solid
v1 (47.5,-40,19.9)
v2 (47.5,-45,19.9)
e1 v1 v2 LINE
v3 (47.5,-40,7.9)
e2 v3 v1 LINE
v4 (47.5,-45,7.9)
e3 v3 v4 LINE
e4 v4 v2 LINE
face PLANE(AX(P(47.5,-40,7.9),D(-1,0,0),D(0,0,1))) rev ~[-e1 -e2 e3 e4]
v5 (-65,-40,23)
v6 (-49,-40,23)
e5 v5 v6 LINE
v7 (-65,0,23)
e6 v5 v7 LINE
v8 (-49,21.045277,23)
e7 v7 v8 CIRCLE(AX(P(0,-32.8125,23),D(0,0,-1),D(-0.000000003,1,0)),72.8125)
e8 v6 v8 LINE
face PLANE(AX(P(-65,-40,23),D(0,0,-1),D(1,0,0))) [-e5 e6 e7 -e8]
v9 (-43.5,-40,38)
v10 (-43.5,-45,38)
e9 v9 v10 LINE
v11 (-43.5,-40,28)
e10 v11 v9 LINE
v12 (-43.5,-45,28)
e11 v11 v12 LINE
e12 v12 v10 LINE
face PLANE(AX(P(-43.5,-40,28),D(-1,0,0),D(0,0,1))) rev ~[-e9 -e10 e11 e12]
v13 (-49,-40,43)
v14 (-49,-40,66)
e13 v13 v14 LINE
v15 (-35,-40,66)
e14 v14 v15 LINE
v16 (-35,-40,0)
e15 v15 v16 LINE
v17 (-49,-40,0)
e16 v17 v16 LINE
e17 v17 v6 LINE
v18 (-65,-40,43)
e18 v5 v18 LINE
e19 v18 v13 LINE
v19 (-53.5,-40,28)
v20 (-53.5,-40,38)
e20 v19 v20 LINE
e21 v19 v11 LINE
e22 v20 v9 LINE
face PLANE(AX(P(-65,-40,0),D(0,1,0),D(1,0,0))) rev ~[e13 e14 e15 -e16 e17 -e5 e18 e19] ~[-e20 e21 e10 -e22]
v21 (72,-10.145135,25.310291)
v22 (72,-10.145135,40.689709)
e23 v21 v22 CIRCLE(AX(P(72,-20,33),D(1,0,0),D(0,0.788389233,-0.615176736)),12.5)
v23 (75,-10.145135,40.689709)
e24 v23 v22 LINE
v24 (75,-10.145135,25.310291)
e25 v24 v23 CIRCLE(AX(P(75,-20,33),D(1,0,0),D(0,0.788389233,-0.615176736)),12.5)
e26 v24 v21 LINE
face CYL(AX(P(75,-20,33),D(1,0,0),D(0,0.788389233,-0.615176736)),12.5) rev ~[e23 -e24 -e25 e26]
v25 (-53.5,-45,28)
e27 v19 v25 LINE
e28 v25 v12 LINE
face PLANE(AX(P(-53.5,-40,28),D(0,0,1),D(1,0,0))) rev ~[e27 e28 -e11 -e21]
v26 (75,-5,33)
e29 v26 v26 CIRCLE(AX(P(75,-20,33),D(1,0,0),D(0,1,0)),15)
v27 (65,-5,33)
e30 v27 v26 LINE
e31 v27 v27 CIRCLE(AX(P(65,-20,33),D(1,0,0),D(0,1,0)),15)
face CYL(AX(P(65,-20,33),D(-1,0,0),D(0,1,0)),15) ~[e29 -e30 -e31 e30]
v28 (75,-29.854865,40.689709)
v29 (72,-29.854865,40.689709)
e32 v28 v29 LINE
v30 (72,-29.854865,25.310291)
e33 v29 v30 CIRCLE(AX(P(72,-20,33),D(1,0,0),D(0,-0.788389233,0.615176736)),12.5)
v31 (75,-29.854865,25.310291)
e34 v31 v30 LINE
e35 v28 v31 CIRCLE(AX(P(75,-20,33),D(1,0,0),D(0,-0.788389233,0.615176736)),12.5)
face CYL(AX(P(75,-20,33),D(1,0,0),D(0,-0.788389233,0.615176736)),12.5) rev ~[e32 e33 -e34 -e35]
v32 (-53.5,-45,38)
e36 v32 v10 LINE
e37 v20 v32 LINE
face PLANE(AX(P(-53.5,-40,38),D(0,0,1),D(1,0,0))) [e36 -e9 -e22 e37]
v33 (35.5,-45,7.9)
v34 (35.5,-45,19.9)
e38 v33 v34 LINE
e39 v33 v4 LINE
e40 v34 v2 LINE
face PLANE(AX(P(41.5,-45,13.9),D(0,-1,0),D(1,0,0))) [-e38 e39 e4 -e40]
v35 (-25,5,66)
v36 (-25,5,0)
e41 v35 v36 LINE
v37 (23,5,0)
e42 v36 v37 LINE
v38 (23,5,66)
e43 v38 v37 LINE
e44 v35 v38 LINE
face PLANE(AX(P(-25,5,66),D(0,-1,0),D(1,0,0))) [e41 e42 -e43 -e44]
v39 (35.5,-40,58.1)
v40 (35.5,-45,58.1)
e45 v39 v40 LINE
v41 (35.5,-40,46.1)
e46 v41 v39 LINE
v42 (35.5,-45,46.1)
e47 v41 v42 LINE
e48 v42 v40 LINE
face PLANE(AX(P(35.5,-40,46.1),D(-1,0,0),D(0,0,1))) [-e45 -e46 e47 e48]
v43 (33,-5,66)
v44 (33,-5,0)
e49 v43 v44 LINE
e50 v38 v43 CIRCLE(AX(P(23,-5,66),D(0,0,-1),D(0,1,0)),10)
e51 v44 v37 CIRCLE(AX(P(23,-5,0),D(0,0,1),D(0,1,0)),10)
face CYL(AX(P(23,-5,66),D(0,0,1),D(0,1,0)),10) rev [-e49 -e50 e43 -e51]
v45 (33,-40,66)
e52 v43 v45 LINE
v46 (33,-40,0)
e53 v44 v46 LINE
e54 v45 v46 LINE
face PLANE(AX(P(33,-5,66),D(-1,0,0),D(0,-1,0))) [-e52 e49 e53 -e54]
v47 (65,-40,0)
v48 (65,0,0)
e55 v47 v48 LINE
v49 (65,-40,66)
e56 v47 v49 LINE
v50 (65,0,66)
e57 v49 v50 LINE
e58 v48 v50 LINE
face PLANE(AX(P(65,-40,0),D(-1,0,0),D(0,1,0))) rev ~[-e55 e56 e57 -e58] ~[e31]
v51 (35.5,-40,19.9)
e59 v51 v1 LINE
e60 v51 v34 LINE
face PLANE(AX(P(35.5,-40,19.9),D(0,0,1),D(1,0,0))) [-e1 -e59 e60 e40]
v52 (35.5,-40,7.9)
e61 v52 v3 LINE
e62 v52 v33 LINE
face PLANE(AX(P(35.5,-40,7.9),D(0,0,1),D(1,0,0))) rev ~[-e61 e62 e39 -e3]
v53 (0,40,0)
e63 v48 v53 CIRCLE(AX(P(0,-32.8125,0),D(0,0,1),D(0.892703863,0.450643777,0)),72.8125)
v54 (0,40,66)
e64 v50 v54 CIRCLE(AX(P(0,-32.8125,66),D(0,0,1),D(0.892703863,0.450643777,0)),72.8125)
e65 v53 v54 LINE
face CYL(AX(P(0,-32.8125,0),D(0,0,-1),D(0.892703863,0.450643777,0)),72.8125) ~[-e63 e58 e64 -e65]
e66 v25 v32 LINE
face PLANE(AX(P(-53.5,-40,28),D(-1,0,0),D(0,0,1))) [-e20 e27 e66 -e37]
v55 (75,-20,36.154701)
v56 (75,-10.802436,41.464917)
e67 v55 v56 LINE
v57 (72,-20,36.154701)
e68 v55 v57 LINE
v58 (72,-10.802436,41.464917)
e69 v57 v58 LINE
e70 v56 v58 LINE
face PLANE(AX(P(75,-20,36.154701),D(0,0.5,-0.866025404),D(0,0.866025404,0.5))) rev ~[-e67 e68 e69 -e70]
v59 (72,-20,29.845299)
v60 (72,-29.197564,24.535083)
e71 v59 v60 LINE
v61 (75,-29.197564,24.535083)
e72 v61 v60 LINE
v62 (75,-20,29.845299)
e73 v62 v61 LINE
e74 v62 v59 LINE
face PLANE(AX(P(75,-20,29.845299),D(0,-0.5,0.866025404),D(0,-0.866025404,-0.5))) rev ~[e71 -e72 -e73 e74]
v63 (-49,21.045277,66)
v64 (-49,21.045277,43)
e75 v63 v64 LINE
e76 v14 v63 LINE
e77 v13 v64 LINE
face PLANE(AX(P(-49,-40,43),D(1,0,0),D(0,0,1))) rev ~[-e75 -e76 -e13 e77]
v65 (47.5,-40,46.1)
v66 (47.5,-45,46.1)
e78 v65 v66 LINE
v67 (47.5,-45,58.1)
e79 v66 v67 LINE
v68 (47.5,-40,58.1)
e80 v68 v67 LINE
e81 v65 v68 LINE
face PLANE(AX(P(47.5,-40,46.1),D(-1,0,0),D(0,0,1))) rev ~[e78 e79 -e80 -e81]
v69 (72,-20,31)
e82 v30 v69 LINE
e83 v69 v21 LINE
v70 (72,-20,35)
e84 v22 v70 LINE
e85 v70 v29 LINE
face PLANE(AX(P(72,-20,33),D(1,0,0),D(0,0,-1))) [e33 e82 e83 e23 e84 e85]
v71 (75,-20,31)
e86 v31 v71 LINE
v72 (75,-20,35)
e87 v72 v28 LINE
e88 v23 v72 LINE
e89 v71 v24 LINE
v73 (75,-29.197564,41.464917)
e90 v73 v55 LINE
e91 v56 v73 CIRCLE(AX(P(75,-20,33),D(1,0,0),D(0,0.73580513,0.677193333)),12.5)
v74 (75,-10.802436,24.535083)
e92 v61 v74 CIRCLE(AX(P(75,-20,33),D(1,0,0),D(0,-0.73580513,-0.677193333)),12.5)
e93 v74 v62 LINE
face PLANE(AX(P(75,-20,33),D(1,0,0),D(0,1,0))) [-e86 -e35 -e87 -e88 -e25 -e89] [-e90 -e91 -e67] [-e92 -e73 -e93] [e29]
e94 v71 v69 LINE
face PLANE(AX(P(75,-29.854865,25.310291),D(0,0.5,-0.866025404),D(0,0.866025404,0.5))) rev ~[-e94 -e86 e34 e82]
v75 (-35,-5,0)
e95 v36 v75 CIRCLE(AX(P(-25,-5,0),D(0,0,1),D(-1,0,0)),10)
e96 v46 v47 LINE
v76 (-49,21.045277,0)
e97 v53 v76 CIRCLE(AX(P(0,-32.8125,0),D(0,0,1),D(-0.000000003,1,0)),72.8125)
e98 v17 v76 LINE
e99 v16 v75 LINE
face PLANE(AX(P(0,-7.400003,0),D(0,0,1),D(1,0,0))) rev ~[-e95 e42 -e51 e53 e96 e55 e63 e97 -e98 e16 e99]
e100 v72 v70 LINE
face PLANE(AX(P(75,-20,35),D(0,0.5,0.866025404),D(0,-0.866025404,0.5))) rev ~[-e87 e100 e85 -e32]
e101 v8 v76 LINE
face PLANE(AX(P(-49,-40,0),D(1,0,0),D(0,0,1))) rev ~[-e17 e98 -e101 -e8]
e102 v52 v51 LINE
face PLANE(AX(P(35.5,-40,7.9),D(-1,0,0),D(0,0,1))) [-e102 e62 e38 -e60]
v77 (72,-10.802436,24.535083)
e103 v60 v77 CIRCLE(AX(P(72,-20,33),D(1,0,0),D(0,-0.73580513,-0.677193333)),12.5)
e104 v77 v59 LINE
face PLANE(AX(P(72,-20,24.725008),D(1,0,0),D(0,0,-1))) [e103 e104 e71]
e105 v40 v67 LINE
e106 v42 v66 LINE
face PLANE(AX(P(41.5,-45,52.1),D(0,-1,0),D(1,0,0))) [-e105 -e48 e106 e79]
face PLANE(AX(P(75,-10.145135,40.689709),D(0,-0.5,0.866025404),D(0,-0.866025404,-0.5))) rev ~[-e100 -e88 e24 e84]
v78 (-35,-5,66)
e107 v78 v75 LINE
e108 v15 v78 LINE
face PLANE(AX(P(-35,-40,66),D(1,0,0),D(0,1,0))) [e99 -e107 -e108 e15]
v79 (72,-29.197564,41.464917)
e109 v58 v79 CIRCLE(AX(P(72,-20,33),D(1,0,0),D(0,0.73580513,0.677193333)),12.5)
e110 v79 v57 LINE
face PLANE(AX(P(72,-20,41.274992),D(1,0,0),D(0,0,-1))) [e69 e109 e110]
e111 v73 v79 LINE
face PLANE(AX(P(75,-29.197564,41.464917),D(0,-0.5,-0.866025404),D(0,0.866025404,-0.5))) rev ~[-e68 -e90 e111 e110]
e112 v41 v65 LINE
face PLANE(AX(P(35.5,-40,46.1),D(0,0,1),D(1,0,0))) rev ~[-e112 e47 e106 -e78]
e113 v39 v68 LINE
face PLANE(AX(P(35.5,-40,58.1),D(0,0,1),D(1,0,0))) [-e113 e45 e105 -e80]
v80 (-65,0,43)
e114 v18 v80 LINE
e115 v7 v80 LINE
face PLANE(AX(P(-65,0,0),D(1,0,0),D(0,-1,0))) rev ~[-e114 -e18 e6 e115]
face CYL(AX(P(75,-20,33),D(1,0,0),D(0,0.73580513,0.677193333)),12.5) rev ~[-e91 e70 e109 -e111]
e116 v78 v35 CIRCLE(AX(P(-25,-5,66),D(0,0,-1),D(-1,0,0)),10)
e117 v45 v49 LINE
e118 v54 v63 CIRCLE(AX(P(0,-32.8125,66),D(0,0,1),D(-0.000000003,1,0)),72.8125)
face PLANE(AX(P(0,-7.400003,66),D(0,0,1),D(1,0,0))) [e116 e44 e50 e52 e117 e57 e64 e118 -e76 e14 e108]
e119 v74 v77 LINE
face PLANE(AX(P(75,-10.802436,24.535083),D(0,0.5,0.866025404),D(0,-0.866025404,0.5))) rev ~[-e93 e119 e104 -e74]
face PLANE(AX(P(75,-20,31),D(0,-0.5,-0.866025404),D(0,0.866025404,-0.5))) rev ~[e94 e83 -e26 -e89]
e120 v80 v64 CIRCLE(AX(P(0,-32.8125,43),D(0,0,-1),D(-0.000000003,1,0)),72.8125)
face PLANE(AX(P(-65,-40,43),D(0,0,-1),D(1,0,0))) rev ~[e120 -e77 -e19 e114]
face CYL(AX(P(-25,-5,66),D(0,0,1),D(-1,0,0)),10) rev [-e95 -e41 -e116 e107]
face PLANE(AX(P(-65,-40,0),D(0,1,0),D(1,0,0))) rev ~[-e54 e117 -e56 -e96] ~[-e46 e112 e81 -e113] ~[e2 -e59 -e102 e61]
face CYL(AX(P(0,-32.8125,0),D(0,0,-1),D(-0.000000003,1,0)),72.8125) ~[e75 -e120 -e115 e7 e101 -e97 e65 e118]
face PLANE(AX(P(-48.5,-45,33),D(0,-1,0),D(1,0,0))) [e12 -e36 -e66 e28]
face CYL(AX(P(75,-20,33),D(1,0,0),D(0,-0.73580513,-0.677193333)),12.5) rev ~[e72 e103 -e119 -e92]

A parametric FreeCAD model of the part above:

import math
import FreeCAD as App
import Part
import Sketcher
from FreeCAD import Vector
Q = App.Units.Quantity


def add_polygon(sketch, points):
    """Adds a closed chain of lines whose ends are joined by coincident constraints."""
    first, n = sketch.GeometryCount, len(points)
    for a, b in zip(points, points[1:] + points[:1]):
        sketch.addGeometry(Part.LineSegment(App.Vector(*a, 0), App.Vector(*b, 0)), False)
    for i in range(n):
        sketch.addConstraint(Sketcher.Constraint("Coincident", first + i, 2, first + (i + 1) % n, 1))

doc = App.newDocument("Part")
params = doc.addObject("Spreadsheet::Sheet", "Params")
for row, (alias, value) in enumerate([
    ("sketch1_width", "130 mm"),
    ("sketch1_height", "40 mm"),
    ("pad1_length", "66 mm"),
    ("sketch2_diameter", "30 mm"),
    ("pad2_length", "10 mm"),
    ("sketch3_radius", "10 mm"),
    ("sketch3_width", "48 mm"),
    ("sketch3_height", "35 mm"),
    ("sketch4_width", "16 mm"),
    ("sketch4_height", "23 mm"),
    ("sketch5_width", "10 mm"),
    ("pad3_length", "5 mm"),
    ("sketch6_width", "12 mm"),
    ("pad4_length", "5 mm"),
    ("sketch7_radius", "12.5 mm"),
    ("pocket3_length", "3 mm"),
], start=1):
    params.set(f"A{row}", alias)
    params.set(f"B{row}", "=" + value)
    params.setAlias(f"B{row}", alias)

body = doc.addObject("PartDesign::Body", "Body")

# Sketch on XY plane
sketch1 = body.newObject("Sketcher::SketchObject", "Sketch")
sketch1.AttachmentSupport = (doc.getObject("XY_Plane"), [""])
sketch1.MapMode = "FlatFace"
sketch1.addGeometry(Part.ArcOfCircle(Part.Circle(Vector(0, -33, 0), Vector(0, 0, 1), 73), math.radians(27), math.radians(90)), False)
sketch1.addGeometry(Part.ArcOfCircle(Part.Circle(Vector(0, -33, 0), Vector(0, 0, 1), 73), math.radians(90), math.radians(153)), False)
sketch1.addGeometry(Part.LineSegment(Vector(-65, 0, 0), Vector(-65, -40, 0)), False)
sketch1.addGeometry(Part.LineSegment(Vector(-65, -40, 0), Vector(65, -40, 0)), False)
sketch1.addGeometry(Part.LineSegment(Vector(65, -40, 0), Vector(65, 0, 0)), False)
sketch1.addConstraint(Sketcher.Constraint("Tangent", 0, 2, 1, 1))
sketch1.addConstraint(Sketcher.Constraint("Coincident", 1, 2, 2, 1))
sketch1.addConstraint(Sketcher.Constraint("Coincident", 2, 2, 3, 1))
sketch1.addConstraint(Sketcher.Constraint("Coincident", 3, 2, 4, 1))
sketch1.addConstraint(Sketcher.Constraint("Coincident", 4, 2, 0, 1))
sketch1.addConstraint(Sketcher.Constraint("Vertical", 2))
sketch1.addConstraint(Sketcher.Constraint("Horizontal", 3))
sketch1.addConstraint(Sketcher.Constraint("Vertical", 4))
sketch1.addConstraint(Sketcher.Constraint("Equal", 0, 1))
sketch1.addConstraint(Sketcher.Constraint("Symmetric", 1, 2, 4, 2, -1, 1))
sketch1.addConstraint(Sketcher.Constraint("PointOnObject", 0, 3, -2))
sketch1.addConstraint(Sketcher.Constraint("PointOnObject", 0, 2, -2))
sketch1.addConstraint(Sketcher.Constraint("DistanceX", 3, 1, 3, 2, Q("130 mm")))
sketch1.addConstraint(Sketcher.Constraint("DistanceY", 2, 2, 2, 1, Q("40 mm")))
sketch1.addConstraint(Sketcher.Constraint("DistanceY", -1, 1, 0, 2, Q("40 mm")))
sketch1.setExpression("Constraints[12]", "Params.sketch1_width")
sketch1.setExpression("Constraints[13]", "Params.sketch1_height")
pad1 = body.newObject("PartDesign::Pad", "Pad")
pad1.Profile = sketch1
pad1.setExpression("Length", "Params.pad1_length")

# Sketch on YZ plane
sketch2 = body.newObject("Sketcher::SketchObject", "Sketch001")
sketch2.AttachmentSupport = (doc.getObject("YZ_Plane"), [""])
sketch2.MapMode = "FlatFace"
sketch2.AttachmentOffset = App.Placement(Vector(0, 0, 65), App.Rotation())
sketch2.addGeometry(Part.Circle(Vector(-20, 33, 0), Vector(0, 0, 1), 15), False)
sketch2.addConstraint(Sketcher.Constraint("Diameter", 0, Q("30 mm")))
sketch2.addConstraint(Sketcher.Constraint("DistanceX", 0, 3, -1, 1, Q("20 mm")))
sketch2.addConstraint(Sketcher.Constraint("DistanceY", -1, 1, 0, 3, Q("33 mm")))
sketch2.setExpression("Constraints[0]", "Params.sketch2_diameter")
pad2 = body.newObject("PartDesign::Pad", "Pad001")
pad2.Profile = sketch2
pad2.setExpression("Length", "Params.pad2_length")

# Sketch on XY plane
sketch3 = body.newObject("Sketcher::SketchObject", "Sketch002")
sketch3.AttachmentSupport = (doc.getObject("XY_Plane"), [""])
sketch3.MapMode = "FlatFace"
sketch3.AttachmentOffset = App.Placement(Vector(0, 0, 66), App.Rotation())
sketch3.addGeometry(Part.LineSegment(Vector(23, 5, 0), Vector(-25, 5, 0)), False)
sketch3.addGeometry(Part.ArcOfCircle(Part.Circle(Vector(-25, -5, 0), Vector(0, 0, 1), 10), math.radians(90), math.radians(180)), False)
sketch3.addGeometry(Part.LineSegment(Vector(-35, -5, 0), Vector(-35, -40, 0)), False)
sketch3.addGeometry(Part.LineSegment(Vector(-35, -40, 0), Vector(33, -40, 0)), False)
sketch3.addGeometry(Part.LineSegment(Vector(33, -40, 0), Vector(33, -5, 0)), False)
sketch3.addGeometry(Part.ArcOfCircle(Part.Circle(Vector(23, -5, 0), Vector(0, 0, 1), 10), math.radians(0), math.radians(90)), False)
sketch3.addConstraint(Sketcher.Constraint("Tangent", 0, 2, 1, 1))
sketch3.addConstraint(Sketcher.Constraint("Tangent", 1, 2, 2, 1))
sketch3.addConstraint(Sketcher.Constraint("Coincident", 2, 2, 3, 1))
sketch3.addConstraint(Sketcher.Constraint("Coincident", 3, 2, 4, 1))
sketch3.addConstraint(Sketcher.Constraint("Tangent", 4, 2, 5, 1))
sketch3.addConstraint(Sketcher.Constraint("Tangent", 5, 2, 0, 1))
sketch3.addConstraint(Sketcher.Constraint("Horizontal", 0))
sketch3.addConstraint(Sketcher.Constraint("Vertical", 2))
sketch3.addConstraint(Sketcher.Constraint("Horizontal", 3))
sketch3.addConstraint(Sketcher.Constraint("Vertical", 4))
sketch3.addConstraint(Sketcher.Constraint("Equal", 1, 5))
sketch3.addConstraint(Sketcher.Constraint("Radius", 1, Q("10 mm")))
sketch3.addConstraint(Sketcher.Constraint("DistanceX", 0, 2, 0, 1, Q("48 mm")))
sketch3.addConstraint(Sketcher.Constraint("DistanceY", 2, 2, 2, 1, Q("35 mm")))
sketch3.addConstraint(Sketcher.Constraint("DistanceX", 1, 3, -1, 1, Q("25 mm")))
sketch3.addConstraint(Sketcher.Constraint("DistanceY", 1, 3, -1, 1, Q("5 mm")))
sketch3.setExpression("Constraints[11]", "Params.sketch3_radius")
sketch3.setExpression("Constraints[12]", "Params.sketch3_width")
sketch3.setExpression("Constraints[13]", "Params.sketch3_height")
pocket1 = body.newObject("PartDesign::Pocket", "Pocket")
pocket1.Profile = sketch3
pocket1.Type = "ThroughAll"

# Sketch on XZ plane
sketch4 = body.newObject("Sketcher::SketchObject", "Sketch003")
sketch4.AttachmentSupport = (doc.getObject("XZ_Plane"), [""])
sketch4.MapMode = "FlatFace"
sketch4.AttachmentOffset = App.Placement(Vector(0, 0, 40), App.Rotation())
add_polygon(sketch4, [(-65, 66), (-65, 43), (-49, 43), (-49, 66)])  # lines 0-3
add_polygon(sketch4, [(-65, 23), (-65, 0), (-49, 0), (-49, 23)])  # lines 4-7
sketch4.addConstraint(Sketcher.Constraint("Vertical", 0))
sketch4.addConstraint(Sketcher.Constraint("Horizontal", 1))
sketch4.addConstraint(Sketcher.Constraint("Vertical", 2))
sketch4.addConstraint(Sketcher.Constraint("Horizontal", 3))
sketch4.addConstraint(Sketcher.Constraint("Vertical", 4))
sketch4.addConstraint(Sketcher.Constraint("Horizontal", 5))
sketch4.addConstraint(Sketcher.Constraint("Vertical", 6))
sketch4.addConstraint(Sketcher.Constraint("Horizontal", 7))
sketch4.addConstraint(Sketcher.Constraint("PointOnObject", 4, 2, -1))
sketch4.addConstraint(Sketcher.Constraint("Vertical", 3, 2, 4, 2))
sketch4.addConstraint(Sketcher.Constraint("Vertical", 2, 2, 5, 2))
sketch4.addConstraint(Sketcher.Constraint("Equal", 2, 4))
sketch4.addConstraint(Sketcher.Constraint("DistanceX", 1, 1, 1, 2, Q("16 mm")))
sketch4.addConstraint(Sketcher.Constraint("DistanceY", 0, 2, 0, 1, Q("23 mm")))
sketch4.addConstraint(Sketcher.Constraint("DistanceX", 0, 2, -1, 1, Q("65 mm")))
sketch4.addConstraint(Sketcher.Constraint("DistanceY", -1, 1, 0, 2, Q("43 mm")))
sketch4.setExpression("Constraints[20]", "Params.sketch4_width")
sketch4.setExpression("Constraints[21]", "Params.sketch4_height")
pocket2 = body.newObject("PartDesign::Pocket", "Pocket001")
pocket2.Profile = sketch4
pocket2.Type = "ThroughAll"

# Sketch on XZ plane
sketch5 = body.newObject("Sketcher::SketchObject", "Sketch004")
sketch5.AttachmentSupport = (doc.getObject("XZ_Plane"), [""])
sketch5.MapMode = "FlatFace"
sketch5.AttachmentOffset = App.Placement(Vector(0, 0, 40), App.Rotation())
add_polygon(sketch5, [(-54, 38), (-54, 28), (-44, 28), (-44, 38)])  # lines 0-3
sketch5.addConstraint(Sketcher.Constraint("Vertical", 0))
sketch5.addConstraint(Sketcher.Constraint("Horizontal", 1))
sketch5.addConstraint(Sketcher.Constraint("Vertical", 2))
sketch5.addConstraint(Sketcher.Constraint("Horizontal", 3))
sketch5.addConstraint(Sketcher.Constraint("Equal", 3, 0))
sketch5.addConstraint(Sketcher.Constraint("DistanceX", 1, 1, 1, 2, Q("10 mm")))
sketch5.addConstraint(Sketcher.Constraint("DistanceY", -1, 1, 0, 2, Q("28 mm")))
sketch5.addConstraint(Sketcher.Constraint("DistanceX", 0, 2, -1, 1, Q("53.5 mm")))
sketch5.setExpression("Constraints[9]", "Params.sketch5_width")
pad3 = body.newObject("PartDesign::Pad", "Pad002")
pad3.Profile = sketch5
pad3.setExpression("Length", "Params.pad3_length")

# Sketch on XZ plane
sketch6 = body.newObject("Sketcher::SketchObject", "Sketch005")
sketch6.AttachmentSupport = (doc.getObject("XZ_Plane"), [""])
sketch6.MapMode = "FlatFace"
sketch6.AttachmentOffset = App.Placement(Vector(0, 0, 40), App.Rotation())
add_polygon(sketch6, [(36, 20), (36, 8), (48, 8), (48, 20)])  # lines 0-3
add_polygon(sketch6, [(36, 58), (36, 46), (48, 46), (48, 58)])  # lines 4-7
sketch6.addConstraint(Sketcher.Constraint("Vertical", 0))
sketch6.addConstraint(Sketcher.Constraint("Horizontal", 1))
sketch6.addConstraint(Sketcher.Constraint("Vertical", 2))
sketch6.addConstraint(Sketcher.Constraint("Horizontal", 3))
sketch6.addConstraint(Sketcher.Constraint("Vertical", 4))
sketch6.addConstraint(Sketcher.Constraint("Horizontal", 5))
sketch6.addConstraint(Sketcher.Constraint("Vertical", 6))
sketch6.addConstraint(Sketcher.Constraint("Horizontal", 7))
sketch6.addConstraint(Sketcher.Constraint("Vertical", 3, 2, 4, 2))
sketch6.addConstraint(Sketcher.Constraint("Vertical", 2, 2, 5, 2))
sketch6.addConstraint(Sketcher.Constraint("Equal", 7, 0))
sketch6.addConstraint(Sketcher.Constraint("Equal", 2, 4))
sketch6.addConstraint(Sketcher.Constraint("DistanceX", 1, 1, 1, 2, Q("12 mm")))
sketch6.addConstraint(Sketcher.Constraint("DistanceX", -1, 1, 0, 2, Q("35.5 mm")))
sketch6.addConstraint(Sketcher.Constraint("DistanceY", -1, 1, 0, 2, Q("7.9 mm")))
sketch6.addConstraint(Sketcher.Constraint("DistanceY", -1, 1, 4, 2, Q("46.1 mm")))
sketch6.setExpression("Constraints[20]", "Params.sketch6_width")
pad4 = body.newObject("PartDesign::Pad", "Pad003")
pad4.Profile = sketch6
pad4.setExpression("Length", "Params.pad4_length")

# Sketch on YZ plane
sketch7 = body.newObject("Sketcher::SketchObject", "Sketch006")
sketch7.AttachmentSupport = (doc.getObject("YZ_Plane"), [""])
sketch7.MapMode = "FlatFace"
sketch7.AttachmentOffset = App.Placement(Vector(0, 0, 75), App.Rotation())
sketch7.addGeometry(Part.LineSegment(Vector(-10, 41, 0), Vector(-20, 35, 0)), False)
sketch7.addGeometry(Part.LineSegment(Vector(-20, 35, 0), Vector(-30, 41, 0)), False)
sketch7.addGeometry(Part.ArcOfCircle(Part.Circle(Vector(-20, 33, 0), Vector(0, 0, 1), 12), math.radians(142), math.radians(218)), False)
sketch7.addGeometry(Part.LineSegment(Vector(-30, 25, 0), Vector(-20, 31, 0)), False)
sketch7.addGeometry(Part.LineSegment(Vector(-20, 31, 0), Vector(-10, 25, 0)), False)
sketch7.addGeometry(Part.ArcOfCircle(Part.Circle(Vector(-20, 33, 0), Vector(0, 0, 1), 12), math.radians(-38), math.radians(38)), False)
sketch7.addGeometry(Part.LineSegment(Vector(-20, 36, 0), Vector(-11, 41, 0)), False)
sketch7.addGeometry(Part.ArcOfCircle(Part.Circle(Vector(-20, 33, 0), Vector(0, 0, 1), 12), math.radians(43), math.radians(137)), False)
sketch7.addGeometry(Part.LineSegment(Vector(-29, 41, 0), Vector(-20, 36, 0)), False)
sketch7.addGeometry(Part.ArcOfCircle(Part.Circle(Vector(-20, 33, 0), Vector(0, 0, 1), 12), math.radians(-137), math.radians(-43)), False)
sketch7.addGeometry(Part.LineSegment(Vector(-11, 25, 0), Vector(-20, 30, 0)), False)
sketch7.addGeometry(Part.LineSegment(Vector(-20, 30, 0), Vector(-29, 25, 0)), False)
sketch7.addConstraint(Sketcher.Constraint("Coincident", 0, 2, 1, 1))
sketch7.addConstraint(Sketcher.Constraint("Coincident", 1, 2, 2, 1))
sketch7.addConstraint(Sketcher.Constraint("Coincident", 2, 2, 3, 1))
sketch7.addConstraint(Sketcher.Constraint("Coincident", 3, 2, 4, 1))
sketch7.addConstraint(Sketcher.Constraint("Coincident", 4, 2, 5, 1))
sketch7.addConstraint(Sketcher.Constraint("Coincident", 5, 2, 0, 1))
sketch7.addConstraint(Sketcher.Constraint("Coincident", 6, 2, 7, 1))
sketch7.addConstraint(Sketcher.Constraint("Coincident", 7, 2, 8, 1))
sketch7.addConstraint(Sketcher.Constraint("Coincident", 8, 2, 6, 1))
sketch7.addConstraint(Sketcher.Constraint("Coincident", 9, 2, 10, 1))
sketch7.addConstraint(Sketcher.Constraint("Coincident", 10, 2, 11, 1))
sketch7.addConstraint(Sketcher.Constraint("Coincident", 11, 2, 9, 1))
sketch7.addConstraint(Sketcher.Constraint("Coincident", 5, 3, 2, 3))
sketch7.addConstraint(Sketcher.Constraint("Coincident", 7, 3, 2, 3))
sketch7.addConstraint(Sketcher.Constraint("Coincident", 9, 3, 2, 3))
sketch7.addConstraint(Sketcher.Constraint("Equal", 2, 5))
sketch7.addConstraint(Sketcher.Constraint("Equal", 5, 7))
sketch7.addConstraint(Sketcher.Constraint("Equal", 7, 9))
sketch7.addConstraint(Sketcher.Constraint("Parallel", 0, 3))
sketch7.addConstraint(Sketcher.Constraint("Parallel", 1, 4))
sketch7.addConstraint(Sketcher.Constraint("Parallel", 3, 6))
sketch7.addConstraint(Sketcher.Constraint("Parallel", 4, 8))
sketch7.addConstraint(Sketcher.Constraint("Parallel", 8, 10))
sketch7.addConstraint(Sketcher.Constraint("Parallel", 6, 11))
sketch7.addConstraint(Sketcher.Constraint("Horizontal", 2, 2, 4, 2))
sketch7.addConstraint(Sketcher.Constraint("Horizontal", 1, 2, 5, 2))
sketch7.addConstraint(Sketcher.Constraint("Horizontal", 6, 2, 7, 2))
sketch7.addConstraint(Sketcher.Constraint("Horizontal", 9, 2, 11, 2))
sketch7.addConstraint(Sketcher.Constraint("Vertical", 9, 3, 0, 2))
sketch7.addConstraint(Sketcher.Constraint("Vertical", 1, 2, 2, 2))
sketch7.addConstraint(Sketcher.Constraint("Vertical", 6, 2, 9, 2))
sketch7.addConstraint(Sketcher.Constraint("Radius", 2, Q("12.5 mm")))
sketch7.addConstraint(Sketcher.Constraint("Angle", 0, Q("-150 deg")))
sketch7.addConstraint(Sketcher.Constraint("DistanceX", 2, 3, -1, 1, Q("20 mm")))
sketch7.addConstraint(Sketcher.Constraint("DistanceY", -1, 1, 2, 3, Q("33 mm")))
sketch7.addConstraint(Sketcher.Constraint("DistanceY", -1, 1, 0, 2, Q("35 mm")))
sketch7.addConstraint(Sketcher.Constraint("DistanceY", -1, 1, 8, 2, Q("36.154701 mm")))
sketch7.setExpression("Constraints[31]", "Params.sketch7_radius")
pocket3 = body.newObject("PartDesign::Pocket", "Pocket002")
pocket3.Profile = sketch7
pocket3.setExpression("Length", "Params.pocket3_length")

doc.recompute()
